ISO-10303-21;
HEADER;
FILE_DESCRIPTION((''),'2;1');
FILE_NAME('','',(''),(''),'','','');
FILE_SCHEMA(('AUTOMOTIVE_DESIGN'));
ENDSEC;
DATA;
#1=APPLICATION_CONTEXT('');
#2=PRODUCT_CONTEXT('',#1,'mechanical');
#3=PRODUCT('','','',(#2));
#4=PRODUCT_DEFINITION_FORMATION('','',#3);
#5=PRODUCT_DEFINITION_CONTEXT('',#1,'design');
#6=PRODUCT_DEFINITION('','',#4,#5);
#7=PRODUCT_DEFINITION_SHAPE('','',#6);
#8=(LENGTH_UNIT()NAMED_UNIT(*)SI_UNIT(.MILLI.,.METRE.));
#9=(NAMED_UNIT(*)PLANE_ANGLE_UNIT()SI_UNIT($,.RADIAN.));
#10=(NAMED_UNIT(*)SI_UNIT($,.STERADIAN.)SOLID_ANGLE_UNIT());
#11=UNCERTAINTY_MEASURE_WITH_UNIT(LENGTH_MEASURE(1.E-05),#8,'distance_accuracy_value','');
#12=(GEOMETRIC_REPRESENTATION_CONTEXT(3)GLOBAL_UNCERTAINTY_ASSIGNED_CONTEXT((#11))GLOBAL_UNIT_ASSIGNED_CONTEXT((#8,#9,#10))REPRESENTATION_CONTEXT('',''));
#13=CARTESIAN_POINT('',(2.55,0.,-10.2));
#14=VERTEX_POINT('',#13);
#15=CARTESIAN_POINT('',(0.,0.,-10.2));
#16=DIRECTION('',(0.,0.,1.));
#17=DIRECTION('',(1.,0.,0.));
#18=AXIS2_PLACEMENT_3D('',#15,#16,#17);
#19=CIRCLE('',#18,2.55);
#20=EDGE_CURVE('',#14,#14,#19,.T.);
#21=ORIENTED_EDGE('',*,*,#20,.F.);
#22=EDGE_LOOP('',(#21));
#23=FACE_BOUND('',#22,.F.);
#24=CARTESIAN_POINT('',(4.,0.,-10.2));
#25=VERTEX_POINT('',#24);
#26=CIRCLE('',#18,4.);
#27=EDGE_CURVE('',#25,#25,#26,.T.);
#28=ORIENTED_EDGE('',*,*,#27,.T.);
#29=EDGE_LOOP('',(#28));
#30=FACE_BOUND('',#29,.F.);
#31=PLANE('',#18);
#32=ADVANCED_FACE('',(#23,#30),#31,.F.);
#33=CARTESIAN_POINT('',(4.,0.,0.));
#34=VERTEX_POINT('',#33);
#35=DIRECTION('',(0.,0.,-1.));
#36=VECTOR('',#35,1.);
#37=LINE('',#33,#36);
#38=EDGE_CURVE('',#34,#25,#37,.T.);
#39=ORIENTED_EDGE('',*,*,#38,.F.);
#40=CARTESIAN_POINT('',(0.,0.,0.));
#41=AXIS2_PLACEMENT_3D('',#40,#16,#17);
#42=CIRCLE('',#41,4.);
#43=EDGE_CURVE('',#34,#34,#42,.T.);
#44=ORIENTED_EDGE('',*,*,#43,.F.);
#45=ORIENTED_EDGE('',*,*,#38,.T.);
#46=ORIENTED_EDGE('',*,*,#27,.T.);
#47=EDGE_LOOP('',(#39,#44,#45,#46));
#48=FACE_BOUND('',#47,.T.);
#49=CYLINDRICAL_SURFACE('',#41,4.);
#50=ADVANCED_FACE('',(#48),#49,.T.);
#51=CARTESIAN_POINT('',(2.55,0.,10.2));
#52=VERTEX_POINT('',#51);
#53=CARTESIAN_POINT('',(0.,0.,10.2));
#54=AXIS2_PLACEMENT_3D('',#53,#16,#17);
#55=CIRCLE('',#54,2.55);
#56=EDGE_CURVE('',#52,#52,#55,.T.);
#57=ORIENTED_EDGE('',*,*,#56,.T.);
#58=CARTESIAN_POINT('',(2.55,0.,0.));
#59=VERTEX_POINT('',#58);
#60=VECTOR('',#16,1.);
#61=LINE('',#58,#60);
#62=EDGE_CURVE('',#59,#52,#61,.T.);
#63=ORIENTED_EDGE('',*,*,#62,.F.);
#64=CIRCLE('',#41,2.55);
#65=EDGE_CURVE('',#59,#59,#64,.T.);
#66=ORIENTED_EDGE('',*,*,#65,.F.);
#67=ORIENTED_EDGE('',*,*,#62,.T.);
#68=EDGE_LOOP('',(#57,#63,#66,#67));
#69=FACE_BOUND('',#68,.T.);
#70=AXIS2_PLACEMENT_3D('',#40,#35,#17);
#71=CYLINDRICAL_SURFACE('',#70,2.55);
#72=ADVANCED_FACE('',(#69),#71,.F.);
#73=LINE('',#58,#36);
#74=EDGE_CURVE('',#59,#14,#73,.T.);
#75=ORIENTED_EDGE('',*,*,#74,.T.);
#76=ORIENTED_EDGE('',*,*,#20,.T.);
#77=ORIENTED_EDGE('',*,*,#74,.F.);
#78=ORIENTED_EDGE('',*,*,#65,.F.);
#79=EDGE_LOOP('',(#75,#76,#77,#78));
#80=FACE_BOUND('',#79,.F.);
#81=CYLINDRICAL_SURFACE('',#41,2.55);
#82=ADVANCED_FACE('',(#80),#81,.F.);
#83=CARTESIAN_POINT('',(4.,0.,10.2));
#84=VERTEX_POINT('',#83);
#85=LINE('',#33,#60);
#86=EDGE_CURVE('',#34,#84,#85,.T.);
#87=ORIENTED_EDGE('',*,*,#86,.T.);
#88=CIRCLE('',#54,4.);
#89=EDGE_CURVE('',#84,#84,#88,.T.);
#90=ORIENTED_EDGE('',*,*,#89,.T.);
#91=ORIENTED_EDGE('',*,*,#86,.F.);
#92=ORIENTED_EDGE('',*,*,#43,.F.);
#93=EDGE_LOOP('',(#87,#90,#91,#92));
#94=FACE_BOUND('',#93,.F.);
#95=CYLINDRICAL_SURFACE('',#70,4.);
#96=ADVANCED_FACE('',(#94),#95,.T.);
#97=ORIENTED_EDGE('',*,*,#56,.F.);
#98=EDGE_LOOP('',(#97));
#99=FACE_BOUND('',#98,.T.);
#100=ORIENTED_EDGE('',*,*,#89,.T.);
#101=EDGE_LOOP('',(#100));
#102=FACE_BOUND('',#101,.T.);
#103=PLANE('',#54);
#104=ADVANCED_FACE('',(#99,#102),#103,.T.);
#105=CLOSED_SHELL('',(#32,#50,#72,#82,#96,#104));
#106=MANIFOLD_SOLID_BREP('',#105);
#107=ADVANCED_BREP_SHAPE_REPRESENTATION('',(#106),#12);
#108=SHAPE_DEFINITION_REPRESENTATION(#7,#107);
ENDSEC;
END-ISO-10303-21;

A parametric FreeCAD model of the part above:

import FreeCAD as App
import Part
import Sketcher

doc = App.newDocument("Part")
body = doc.addObject("PartDesign::Body", "Body")

sketch1 = body.newObject("Sketcher::SketchObject", "Sketch")
sketch1.AttachmentSupport = (doc.getObject("XY_Plane"), [""])
sketch1.MapMode = "FlatFace"
sketch1.addGeometry(Part.Circle(App.Vector(0, 0, 0), App.Vector(0, 0, 1), 4), False)
sketch1.addGeometry(Part.Circle(App.Vector(0, 0, 0), App.Vector(0, 0, 1), 2.55), False)
sketch1.addConstraint(Sketcher.Constraint("Coincident", 0, 3, -1, 1))
sketch1.addConstraint(Sketcher.Constraint("Coincident", 1, 3, -1, 1))
sketch1.addConstraint(Sketcher.Constraint("Diameter", 0, 8.0))
sketch1.addConstraint(Sketcher.Constraint("Diameter", 1, 5.1))
pad1 = body.newObject("PartDesign::Pad", "Pad")
pad1.Profile = sketch1
pad1.Length = 20.4
pad1.Midplane = True

doc.recompute()
